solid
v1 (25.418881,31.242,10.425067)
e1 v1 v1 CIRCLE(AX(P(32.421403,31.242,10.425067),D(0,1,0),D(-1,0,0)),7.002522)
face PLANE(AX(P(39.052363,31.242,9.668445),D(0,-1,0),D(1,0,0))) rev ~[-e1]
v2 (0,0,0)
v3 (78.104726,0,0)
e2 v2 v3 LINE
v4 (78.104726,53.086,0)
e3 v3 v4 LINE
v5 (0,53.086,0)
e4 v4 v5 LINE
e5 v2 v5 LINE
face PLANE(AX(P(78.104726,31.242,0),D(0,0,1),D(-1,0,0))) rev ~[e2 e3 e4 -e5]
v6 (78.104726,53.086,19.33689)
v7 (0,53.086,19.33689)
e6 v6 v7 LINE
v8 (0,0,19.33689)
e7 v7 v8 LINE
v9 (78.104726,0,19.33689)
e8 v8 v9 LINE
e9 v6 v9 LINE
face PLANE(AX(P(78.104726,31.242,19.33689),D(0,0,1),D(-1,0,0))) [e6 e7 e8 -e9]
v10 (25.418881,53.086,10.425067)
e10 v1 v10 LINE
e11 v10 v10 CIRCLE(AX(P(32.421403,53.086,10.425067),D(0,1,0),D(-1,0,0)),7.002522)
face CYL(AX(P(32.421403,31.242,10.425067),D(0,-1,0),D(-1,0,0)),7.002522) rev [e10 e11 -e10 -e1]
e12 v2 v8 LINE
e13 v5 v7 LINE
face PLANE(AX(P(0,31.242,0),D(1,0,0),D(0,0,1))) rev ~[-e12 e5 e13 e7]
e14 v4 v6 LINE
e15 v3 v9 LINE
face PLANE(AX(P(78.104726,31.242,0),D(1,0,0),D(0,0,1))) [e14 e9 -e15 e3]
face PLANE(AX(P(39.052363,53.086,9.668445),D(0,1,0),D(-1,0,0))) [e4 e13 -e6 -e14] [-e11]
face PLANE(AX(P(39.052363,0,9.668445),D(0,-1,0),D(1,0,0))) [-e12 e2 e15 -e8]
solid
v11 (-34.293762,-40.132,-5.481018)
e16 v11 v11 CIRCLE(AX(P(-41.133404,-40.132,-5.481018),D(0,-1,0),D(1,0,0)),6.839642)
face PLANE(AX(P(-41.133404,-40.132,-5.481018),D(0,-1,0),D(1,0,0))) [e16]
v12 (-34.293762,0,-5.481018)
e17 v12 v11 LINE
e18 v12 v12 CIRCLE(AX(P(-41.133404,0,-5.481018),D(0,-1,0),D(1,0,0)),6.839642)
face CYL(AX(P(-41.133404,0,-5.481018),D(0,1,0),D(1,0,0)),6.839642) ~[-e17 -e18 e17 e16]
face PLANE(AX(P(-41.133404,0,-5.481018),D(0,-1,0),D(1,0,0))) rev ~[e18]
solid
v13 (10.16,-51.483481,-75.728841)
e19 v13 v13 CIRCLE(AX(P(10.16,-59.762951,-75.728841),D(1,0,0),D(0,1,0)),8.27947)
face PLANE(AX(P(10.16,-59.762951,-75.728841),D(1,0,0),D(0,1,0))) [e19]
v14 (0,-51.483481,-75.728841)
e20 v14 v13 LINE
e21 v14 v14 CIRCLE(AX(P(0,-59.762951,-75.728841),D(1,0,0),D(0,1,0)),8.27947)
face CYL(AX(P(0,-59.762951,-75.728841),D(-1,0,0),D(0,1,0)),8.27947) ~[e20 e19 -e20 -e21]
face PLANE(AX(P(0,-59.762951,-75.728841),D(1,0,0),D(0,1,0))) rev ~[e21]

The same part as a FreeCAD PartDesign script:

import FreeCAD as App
import Part
import Sketcher

V = App.Vector
Q = App.Units.Quantity


def add_polygon(sketch, points):
    """Adds a closed chain of lines whose ends are joined by coincident constraints."""
    first, n = sketch.GeometryCount, len(points)
    for a, b in zip(points, points[1:] + points[:1]):
        sketch.addGeometry(Part.LineSegment(App.Vector(*a, 0), App.Vector(*b, 0)), False)
    for i in range(n):
        sketch.addConstraint(Sketcher.Constraint("Coincident", first + i, 2, first + (i + 1) % n, 1))

doc = App.newDocument("Part")
body = doc.addObject("PartDesign::Body", "Body")

sketch1 = body.newObject("Sketcher::SketchObject", "Sketch")
sketch1.AttachmentSupport = (doc.getObject("XZ_Plane"), [""])
sketch1.MapMode = "FlatFace"
add_polygon(sketch1, [(0, 19.33689), (0, 0), (78.104726, 0), (78.104726, 19.33689)])
sketch1.addConstraint([
    Sketcher.Constraint("Vertical", 0),
    Sketcher.Constraint("Horizontal", 1),
    Sketcher.Constraint("Vertical", 2),
    Sketcher.Constraint("Horizontal", 3),
    Sketcher.Constraint("Coincident", 0, 2, -1, 1),
    Sketcher.Constraint("DistanceY", 0, 2, 0, 1, Q("19.33689 mm")),
    Sketcher.Constraint("DistanceX", 1, 1, 1, 2, Q("78.104727 mm")),
])
pad1 = body.newObject("PartDesign::Pad", "Pad")
pad1.Profile = sketch1
pad1.Length = Q("1.23 in")
pad1.Reversed = True

sketch2 = body.newObject("Sketcher::SketchObject", "Sketch001")
sketch2.AttachmentSupport = (doc.getObject("XZ_Plane"), [""])
sketch2.MapMode = "FlatFace"
sketch2.AttachmentOffset = App.Placement(V(0, 0, -1.23 * 25.4), App.Rotation())
add_polygon(sketch2, [(78.104726, 19.33689), (78.104726, 0), (0, 0), (0, 19.33689)])
sketch2.addGeometry(Part.Circle(V(32.421403, 10.425067, 0), V(0, 0, 1), 7.002522), False)
sketch2.addConstraint([
    Sketcher.Constraint("Vertical", 0),
    Sketcher.Constraint("Horizontal", 1),
    Sketcher.Constraint("Vertical", 2),
    Sketcher.Constraint("Horizontal", 3),
    Sketcher.Constraint("Coincident", 1, 2, -1, 1),
    Sketcher.Constraint("Diameter", 4, Q("14.005044 mm")),
    Sketcher.Constraint("DistanceY", 0, 2, 0, 1, Q("19.33689 mm")),
    Sketcher.Constraint("DistanceX", 1, 2, 1, 1, Q("78.104727 mm")),
    Sketcher.Constraint("DistanceX", -1, 1, 4, 3, Q("32.421403 mm")),
    Sketcher.Constraint("DistanceY", -1, 1, 4, 3, Q("10.425067 mm")),
])
pad2 = body.newObject("PartDesign::Pad", "Pad001")
pad2.Profile = sketch2
pad2.Length = Q("0.86 in")
pad2.Reversed = True
body2 = doc.addObject("PartDesign::Body", "Body001")

sketch3 = body2.newObject("Sketcher::SketchObject", "Sketch002")
sketch3.AttachmentSupport = (doc.getObject("XZ_Plane001"), [""])
sketch3.MapMode = "FlatFace"
sketch3.addGeometry(Part.Circle(V(-41.133404, -5.481018, 0), V(0, 0, 1), 6.839642), False)
sketch3.addConstraint([
    Sketcher.Constraint("Diameter", 0, Q("13.679284 mm")),
    Sketcher.Constraint("DistanceX", 0, 3, -1, 1, Q("41.133404 mm")),
    Sketcher.Constraint("DistanceY", 0, 3, -1, 1, Q("5.481018 mm")),
])
pad3 = body2.newObject("PartDesign::Pad", "Pad002")
pad3.Profile = sketch3
pad3.Length = Q("1.58 in")
body3 = doc.addObject("PartDesign::Body", "Body002")

sketch4 = body3.newObject("Sketcher::SketchObject", "Sketch003")
sketch4.AttachmentSupport = (doc.getObject("YZ_Plane002"), [""])
sketch4.MapMode = "FlatFace"
sketch4.addGeometry(Part.Circle(V(-59.762951, -75.728841, 0), V(0, 0, 1), 8.27947), False)
sketch4.addConstraint([
    Sketcher.Constraint("Diameter", 0, Q("16.55894 mm")),
    Sketcher.Constraint("DistanceX", 0, 3, -1, 1, Q("59.762951 mm")),
    Sketcher.Constraint("DistanceY", 0, 3, -1, 1, Q("75.728841 mm")),
])
pad4 = body3.newObject("PartDesign::Pad", "Pad003")
pad4.Profile = sketch4
pad4.Length = Q("0.4 in")

doc.recompute()
